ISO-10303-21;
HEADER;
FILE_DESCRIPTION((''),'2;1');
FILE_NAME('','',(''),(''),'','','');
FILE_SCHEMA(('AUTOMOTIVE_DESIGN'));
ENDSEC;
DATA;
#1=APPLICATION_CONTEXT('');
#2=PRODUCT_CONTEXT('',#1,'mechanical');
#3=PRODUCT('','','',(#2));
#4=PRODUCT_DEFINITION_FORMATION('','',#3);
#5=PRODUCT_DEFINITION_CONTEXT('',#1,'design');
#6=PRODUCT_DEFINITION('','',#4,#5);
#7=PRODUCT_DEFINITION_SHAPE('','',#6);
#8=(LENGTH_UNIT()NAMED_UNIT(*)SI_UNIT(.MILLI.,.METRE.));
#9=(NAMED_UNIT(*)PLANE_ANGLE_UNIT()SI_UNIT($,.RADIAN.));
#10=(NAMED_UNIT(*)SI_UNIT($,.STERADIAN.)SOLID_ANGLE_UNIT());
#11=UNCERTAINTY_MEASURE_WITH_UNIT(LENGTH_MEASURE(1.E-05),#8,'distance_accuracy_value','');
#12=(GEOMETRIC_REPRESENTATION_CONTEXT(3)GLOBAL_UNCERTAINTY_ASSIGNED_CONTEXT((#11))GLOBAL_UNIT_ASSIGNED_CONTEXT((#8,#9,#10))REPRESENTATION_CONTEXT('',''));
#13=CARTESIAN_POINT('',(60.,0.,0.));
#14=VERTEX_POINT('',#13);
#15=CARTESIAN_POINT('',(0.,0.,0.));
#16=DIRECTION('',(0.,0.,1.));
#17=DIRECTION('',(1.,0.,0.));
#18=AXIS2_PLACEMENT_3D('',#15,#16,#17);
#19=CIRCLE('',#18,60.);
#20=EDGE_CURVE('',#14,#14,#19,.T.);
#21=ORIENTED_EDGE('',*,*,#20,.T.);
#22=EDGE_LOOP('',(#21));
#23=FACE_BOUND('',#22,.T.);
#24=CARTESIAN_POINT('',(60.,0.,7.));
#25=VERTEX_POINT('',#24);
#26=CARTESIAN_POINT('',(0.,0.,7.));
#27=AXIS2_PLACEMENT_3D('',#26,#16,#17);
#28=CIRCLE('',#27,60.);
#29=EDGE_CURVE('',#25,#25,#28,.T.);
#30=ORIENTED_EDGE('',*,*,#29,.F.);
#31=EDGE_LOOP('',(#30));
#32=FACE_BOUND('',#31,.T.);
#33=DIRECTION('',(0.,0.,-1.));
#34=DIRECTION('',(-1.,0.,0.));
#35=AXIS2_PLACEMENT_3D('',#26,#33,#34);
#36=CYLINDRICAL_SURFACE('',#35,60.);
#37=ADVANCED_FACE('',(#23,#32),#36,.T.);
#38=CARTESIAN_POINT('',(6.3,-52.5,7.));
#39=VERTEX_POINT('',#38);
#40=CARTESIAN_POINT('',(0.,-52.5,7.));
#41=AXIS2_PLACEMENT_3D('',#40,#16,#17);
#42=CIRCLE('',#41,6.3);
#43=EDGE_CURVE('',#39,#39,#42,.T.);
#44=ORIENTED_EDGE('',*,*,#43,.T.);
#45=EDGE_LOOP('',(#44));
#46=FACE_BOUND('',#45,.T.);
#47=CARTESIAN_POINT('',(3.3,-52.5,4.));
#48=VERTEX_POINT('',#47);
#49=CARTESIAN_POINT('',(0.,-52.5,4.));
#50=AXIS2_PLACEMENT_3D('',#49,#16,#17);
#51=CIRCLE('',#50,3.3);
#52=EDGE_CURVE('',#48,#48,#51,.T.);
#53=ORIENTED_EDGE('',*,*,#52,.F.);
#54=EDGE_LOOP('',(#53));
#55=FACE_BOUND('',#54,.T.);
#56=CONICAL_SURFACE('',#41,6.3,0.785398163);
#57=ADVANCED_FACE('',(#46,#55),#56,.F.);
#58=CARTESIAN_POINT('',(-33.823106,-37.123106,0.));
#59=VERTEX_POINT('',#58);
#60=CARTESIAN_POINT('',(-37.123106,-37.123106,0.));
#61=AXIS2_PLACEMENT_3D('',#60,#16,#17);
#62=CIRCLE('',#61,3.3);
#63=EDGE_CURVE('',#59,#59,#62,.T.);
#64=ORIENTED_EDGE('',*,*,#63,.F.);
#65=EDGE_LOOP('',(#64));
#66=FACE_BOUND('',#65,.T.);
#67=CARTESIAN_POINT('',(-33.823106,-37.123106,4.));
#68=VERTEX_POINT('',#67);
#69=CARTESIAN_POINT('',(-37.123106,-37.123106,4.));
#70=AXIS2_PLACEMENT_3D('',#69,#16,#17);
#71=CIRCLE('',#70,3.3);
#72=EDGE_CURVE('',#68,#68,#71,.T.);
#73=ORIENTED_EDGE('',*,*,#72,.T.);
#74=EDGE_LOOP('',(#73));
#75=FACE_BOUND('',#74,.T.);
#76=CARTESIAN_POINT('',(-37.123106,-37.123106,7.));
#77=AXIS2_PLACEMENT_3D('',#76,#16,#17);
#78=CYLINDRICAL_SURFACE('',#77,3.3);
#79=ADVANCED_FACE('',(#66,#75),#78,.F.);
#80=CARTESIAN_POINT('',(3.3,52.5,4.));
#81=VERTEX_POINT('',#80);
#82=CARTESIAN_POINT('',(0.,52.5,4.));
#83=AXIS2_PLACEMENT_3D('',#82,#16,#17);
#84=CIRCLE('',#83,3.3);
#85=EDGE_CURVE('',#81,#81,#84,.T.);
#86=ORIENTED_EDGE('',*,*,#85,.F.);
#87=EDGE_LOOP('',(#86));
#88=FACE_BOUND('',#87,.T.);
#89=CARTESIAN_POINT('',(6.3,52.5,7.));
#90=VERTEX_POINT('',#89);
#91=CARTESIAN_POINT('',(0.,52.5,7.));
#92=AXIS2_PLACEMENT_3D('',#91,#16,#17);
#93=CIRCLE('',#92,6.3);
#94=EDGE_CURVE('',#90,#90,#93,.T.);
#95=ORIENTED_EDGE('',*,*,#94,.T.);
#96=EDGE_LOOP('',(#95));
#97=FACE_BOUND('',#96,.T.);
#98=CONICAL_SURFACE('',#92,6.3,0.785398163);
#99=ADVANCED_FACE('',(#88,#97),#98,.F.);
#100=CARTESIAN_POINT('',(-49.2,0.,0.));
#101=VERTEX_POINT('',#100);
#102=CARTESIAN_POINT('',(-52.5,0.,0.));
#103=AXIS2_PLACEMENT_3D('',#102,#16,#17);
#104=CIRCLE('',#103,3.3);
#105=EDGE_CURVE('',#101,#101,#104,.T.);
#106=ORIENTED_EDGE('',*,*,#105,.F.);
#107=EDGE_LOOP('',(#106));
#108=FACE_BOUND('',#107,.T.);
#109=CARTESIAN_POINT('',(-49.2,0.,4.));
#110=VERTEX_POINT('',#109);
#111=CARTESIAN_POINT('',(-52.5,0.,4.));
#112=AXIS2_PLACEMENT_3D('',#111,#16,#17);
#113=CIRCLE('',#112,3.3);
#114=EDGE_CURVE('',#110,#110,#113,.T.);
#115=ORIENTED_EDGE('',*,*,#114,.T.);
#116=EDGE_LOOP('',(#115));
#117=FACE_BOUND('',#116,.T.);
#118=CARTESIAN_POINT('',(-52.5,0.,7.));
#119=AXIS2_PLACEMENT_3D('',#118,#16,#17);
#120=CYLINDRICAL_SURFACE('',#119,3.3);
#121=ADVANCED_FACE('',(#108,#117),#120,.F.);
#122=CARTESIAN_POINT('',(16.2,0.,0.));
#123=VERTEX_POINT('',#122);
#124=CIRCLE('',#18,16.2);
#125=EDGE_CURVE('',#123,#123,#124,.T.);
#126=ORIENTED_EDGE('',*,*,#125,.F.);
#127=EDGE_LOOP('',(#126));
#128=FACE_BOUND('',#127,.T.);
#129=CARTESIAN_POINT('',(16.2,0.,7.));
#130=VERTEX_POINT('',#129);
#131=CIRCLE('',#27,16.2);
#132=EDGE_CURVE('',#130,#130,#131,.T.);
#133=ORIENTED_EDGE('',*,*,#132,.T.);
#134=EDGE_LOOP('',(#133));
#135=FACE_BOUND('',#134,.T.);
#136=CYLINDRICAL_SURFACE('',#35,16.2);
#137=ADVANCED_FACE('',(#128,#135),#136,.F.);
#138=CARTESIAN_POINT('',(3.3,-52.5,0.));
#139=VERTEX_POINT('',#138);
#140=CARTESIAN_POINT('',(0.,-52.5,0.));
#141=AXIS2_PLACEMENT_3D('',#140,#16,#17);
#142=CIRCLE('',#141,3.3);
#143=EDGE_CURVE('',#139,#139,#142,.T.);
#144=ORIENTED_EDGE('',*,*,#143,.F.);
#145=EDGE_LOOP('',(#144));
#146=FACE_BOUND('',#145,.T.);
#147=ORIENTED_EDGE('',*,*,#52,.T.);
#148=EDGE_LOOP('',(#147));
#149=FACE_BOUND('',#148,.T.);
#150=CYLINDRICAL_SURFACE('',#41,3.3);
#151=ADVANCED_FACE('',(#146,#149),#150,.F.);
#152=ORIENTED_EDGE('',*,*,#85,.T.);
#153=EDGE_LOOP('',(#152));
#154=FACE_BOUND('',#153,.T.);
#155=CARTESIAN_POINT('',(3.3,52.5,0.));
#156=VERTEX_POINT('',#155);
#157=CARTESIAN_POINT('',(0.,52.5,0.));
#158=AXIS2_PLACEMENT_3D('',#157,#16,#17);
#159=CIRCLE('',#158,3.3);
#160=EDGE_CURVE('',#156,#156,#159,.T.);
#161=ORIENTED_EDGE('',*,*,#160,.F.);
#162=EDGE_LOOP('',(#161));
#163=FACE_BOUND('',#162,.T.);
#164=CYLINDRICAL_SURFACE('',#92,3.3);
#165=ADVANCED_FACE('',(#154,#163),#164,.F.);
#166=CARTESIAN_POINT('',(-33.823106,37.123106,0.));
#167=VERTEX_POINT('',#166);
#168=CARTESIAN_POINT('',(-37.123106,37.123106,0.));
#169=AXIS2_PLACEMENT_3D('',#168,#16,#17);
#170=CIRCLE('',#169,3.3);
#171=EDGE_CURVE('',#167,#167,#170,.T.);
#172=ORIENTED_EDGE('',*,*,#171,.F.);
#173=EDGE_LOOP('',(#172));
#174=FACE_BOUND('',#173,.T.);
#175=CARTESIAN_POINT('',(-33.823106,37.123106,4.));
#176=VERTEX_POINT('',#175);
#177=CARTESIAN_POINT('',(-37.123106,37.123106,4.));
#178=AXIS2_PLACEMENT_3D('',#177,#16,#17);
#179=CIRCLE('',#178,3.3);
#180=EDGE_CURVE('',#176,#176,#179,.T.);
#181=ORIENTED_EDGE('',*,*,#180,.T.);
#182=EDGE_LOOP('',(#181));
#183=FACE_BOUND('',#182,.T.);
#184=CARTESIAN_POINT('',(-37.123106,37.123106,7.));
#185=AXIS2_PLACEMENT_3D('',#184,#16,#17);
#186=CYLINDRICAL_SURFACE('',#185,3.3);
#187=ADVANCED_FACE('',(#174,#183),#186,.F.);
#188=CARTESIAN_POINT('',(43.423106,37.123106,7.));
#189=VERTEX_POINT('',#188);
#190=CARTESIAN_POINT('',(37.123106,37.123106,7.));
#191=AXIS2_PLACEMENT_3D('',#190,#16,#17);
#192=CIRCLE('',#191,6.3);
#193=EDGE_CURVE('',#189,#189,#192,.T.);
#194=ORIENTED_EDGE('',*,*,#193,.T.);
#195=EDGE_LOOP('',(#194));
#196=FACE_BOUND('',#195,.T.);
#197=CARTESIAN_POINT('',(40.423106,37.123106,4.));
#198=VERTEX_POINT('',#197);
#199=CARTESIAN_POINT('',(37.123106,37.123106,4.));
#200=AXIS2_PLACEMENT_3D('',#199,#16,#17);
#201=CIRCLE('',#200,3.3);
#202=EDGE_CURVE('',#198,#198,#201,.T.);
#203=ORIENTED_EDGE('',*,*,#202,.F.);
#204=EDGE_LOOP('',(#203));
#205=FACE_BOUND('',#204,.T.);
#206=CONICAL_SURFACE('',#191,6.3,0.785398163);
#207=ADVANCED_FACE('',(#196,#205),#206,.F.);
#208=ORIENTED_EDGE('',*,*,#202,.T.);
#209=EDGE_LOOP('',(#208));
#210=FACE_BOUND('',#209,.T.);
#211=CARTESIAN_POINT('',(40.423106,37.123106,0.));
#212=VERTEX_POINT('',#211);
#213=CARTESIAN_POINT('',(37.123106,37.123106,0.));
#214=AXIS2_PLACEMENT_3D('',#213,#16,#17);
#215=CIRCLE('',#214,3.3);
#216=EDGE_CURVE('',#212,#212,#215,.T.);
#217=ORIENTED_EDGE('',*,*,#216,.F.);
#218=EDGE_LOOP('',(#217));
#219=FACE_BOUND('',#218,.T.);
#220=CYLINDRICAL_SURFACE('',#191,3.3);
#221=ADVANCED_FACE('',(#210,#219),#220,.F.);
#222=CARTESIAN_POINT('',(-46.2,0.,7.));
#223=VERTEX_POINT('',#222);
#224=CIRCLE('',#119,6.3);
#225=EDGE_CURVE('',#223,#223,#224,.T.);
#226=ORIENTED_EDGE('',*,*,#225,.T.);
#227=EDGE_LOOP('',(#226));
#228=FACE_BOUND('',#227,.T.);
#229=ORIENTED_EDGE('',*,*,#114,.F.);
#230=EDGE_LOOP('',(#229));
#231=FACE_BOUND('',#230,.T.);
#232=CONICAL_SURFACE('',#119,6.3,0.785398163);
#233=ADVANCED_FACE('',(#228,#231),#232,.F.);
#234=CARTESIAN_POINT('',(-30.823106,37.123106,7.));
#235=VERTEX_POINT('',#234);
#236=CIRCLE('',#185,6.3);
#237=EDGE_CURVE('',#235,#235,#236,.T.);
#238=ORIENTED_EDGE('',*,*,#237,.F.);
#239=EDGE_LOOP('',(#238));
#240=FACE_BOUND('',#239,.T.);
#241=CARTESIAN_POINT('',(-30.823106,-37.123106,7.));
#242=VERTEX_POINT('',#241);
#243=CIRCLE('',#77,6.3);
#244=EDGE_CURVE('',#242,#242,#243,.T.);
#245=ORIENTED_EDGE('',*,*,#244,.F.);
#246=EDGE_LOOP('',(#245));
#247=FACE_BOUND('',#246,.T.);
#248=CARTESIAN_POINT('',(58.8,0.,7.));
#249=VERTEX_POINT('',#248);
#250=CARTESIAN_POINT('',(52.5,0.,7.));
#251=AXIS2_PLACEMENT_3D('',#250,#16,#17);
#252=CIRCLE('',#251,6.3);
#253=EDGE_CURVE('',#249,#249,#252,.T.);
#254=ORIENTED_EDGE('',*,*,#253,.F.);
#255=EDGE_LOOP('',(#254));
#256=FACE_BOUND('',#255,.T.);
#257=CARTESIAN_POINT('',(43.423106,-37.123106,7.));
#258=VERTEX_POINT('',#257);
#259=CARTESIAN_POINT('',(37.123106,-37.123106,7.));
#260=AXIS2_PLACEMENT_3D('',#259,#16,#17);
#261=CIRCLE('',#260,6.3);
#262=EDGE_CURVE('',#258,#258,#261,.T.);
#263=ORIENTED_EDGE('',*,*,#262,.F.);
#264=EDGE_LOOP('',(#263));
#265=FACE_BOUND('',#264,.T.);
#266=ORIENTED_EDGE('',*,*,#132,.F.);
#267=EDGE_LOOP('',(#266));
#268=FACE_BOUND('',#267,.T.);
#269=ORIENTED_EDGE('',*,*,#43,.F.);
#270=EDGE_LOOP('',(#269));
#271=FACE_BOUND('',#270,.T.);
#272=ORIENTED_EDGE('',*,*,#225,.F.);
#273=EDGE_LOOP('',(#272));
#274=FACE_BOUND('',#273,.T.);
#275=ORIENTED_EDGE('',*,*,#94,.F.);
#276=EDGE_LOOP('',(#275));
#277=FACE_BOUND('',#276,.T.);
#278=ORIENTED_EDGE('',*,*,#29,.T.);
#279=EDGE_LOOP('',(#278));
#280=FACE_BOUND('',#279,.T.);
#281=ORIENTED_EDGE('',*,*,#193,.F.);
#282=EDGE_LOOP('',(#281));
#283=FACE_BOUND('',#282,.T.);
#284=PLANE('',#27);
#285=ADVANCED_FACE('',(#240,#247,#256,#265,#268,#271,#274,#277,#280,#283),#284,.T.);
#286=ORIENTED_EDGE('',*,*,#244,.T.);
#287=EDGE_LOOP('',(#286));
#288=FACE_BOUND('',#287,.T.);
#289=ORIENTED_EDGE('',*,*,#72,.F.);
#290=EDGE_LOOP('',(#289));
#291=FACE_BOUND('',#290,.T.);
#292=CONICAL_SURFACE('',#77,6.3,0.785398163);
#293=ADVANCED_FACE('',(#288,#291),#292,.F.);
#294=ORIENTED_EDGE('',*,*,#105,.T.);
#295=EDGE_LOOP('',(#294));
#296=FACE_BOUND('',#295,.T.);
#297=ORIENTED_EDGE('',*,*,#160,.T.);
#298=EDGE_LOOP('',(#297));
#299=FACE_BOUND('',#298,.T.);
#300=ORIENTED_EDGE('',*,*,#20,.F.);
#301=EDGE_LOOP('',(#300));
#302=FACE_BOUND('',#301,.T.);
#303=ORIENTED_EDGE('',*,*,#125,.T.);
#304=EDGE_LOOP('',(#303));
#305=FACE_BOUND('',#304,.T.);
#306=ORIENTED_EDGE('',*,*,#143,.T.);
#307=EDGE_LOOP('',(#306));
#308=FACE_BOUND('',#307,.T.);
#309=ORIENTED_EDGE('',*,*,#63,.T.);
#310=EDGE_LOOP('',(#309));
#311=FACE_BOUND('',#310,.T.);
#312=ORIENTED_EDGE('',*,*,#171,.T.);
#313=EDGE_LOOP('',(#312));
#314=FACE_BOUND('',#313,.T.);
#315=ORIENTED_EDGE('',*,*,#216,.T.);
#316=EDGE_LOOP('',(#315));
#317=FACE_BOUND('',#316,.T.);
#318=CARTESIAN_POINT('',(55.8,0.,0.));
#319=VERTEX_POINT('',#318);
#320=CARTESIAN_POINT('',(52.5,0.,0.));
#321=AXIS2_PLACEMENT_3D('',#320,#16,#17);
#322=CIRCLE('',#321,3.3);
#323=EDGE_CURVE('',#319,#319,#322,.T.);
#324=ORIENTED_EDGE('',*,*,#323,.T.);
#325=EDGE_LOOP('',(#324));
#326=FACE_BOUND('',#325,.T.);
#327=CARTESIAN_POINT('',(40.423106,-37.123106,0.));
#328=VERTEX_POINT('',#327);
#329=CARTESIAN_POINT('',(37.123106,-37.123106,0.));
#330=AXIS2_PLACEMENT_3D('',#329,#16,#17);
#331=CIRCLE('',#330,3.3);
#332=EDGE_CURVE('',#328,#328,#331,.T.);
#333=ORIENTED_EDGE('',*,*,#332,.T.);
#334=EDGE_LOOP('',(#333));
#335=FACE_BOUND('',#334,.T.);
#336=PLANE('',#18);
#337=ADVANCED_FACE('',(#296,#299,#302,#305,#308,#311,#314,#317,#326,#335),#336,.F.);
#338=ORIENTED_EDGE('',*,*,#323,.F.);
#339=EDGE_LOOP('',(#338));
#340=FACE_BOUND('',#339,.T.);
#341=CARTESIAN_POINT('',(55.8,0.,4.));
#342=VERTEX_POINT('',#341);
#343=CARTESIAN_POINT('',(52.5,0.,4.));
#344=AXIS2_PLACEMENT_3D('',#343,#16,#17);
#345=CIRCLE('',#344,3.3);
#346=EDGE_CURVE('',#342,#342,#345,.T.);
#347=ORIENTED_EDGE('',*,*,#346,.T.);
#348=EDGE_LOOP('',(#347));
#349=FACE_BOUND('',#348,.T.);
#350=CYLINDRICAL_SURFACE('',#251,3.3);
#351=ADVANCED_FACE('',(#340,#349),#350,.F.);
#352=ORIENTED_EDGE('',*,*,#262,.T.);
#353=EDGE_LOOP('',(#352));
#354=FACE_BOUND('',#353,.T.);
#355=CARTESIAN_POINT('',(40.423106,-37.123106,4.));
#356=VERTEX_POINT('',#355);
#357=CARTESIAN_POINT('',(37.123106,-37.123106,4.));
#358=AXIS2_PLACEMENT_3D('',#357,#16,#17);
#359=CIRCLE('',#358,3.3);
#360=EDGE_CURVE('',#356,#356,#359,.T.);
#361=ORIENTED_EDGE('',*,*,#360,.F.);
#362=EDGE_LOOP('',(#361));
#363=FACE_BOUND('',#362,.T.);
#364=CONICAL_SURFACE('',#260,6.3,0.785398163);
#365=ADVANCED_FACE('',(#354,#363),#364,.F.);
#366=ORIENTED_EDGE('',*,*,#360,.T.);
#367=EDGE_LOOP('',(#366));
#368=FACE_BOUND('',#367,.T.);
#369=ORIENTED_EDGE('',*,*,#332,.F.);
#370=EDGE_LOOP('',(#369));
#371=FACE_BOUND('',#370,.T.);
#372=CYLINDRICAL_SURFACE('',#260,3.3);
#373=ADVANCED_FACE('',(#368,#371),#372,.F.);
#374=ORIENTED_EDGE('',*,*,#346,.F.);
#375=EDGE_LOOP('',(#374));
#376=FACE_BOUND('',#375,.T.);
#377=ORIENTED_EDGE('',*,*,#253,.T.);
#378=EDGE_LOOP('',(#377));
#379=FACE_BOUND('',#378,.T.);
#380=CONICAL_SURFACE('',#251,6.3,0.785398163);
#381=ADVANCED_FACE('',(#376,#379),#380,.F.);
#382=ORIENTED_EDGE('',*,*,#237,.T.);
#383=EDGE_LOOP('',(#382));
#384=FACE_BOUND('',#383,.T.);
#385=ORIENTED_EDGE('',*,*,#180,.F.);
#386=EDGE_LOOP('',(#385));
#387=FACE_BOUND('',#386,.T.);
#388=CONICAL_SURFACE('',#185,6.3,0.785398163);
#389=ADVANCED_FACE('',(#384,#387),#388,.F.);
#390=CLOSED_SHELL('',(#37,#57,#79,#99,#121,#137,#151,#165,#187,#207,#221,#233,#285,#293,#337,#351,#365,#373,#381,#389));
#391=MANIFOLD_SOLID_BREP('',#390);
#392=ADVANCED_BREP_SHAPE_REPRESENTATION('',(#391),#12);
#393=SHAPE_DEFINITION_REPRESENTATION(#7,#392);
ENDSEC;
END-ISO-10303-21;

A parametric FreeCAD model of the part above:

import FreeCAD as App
import Part
import Sketcher

doc = App.newDocument("Part")
params = doc.addObject("Spreadsheet::Sheet", "Params")
for row, (alias, value) in enumerate([
    ("sketch1_diameter", "120 mm"),
    ("sketch1_diameter2", "32.4 mm"),
    ("pad1_length", "7 mm"),
    ("sketch2_diameter", "6.6 mm"),
    ("hole_diameter", "6.6 mm"),
    ("hole_csink_diameter", "12.6 mm"),
], start=1):
    params.set(f"A{row}", alias)
    params.set(f"B{row}", "=" + value)
    params.setAlias(f"B{row}", alias)

body = doc.addObject("PartDesign::Body", "Body")

# Sketch on XY plane
sketch1 = body.newObject("Sketcher::SketchObject", "Sketch")
sketch1.AttachmentSupport = (doc.getObject("XY_Plane"), [""])
sketch1.MapMode = "FlatFace"
sketch1.addGeometry([
    Part.Circle(App.Vector(0, 0, 0), App.Vector(0, 0, 1), 60),
    Part.Circle(App.Vector(0, 0, 0), App.Vector(0, 0, 1), 16),
], False)
sketch1.addConstraint([
    Sketcher.Constraint("Coincident", 0, 3, -1, 1),
    Sketcher.Constraint("Coincident", 1, 3, -1, 1),
    Sketcher.Constraint("Diameter", 0, 120.0),
    Sketcher.Constraint("Diameter", 1, 32.4),
])
sketch1.setExpression("Constraints[2]", "Params.sketch1_diameter")
sketch1.setExpression("Constraints[3]", "Params.sketch1_diameter2")
pad1 = body.newObject("PartDesign::Pad", "Pad")
pad1.Profile = sketch1
pad1.setExpression("Length", "Params.pad1_length")

# Sketch on XY plane
sketch2 = body.newObject("Sketcher::SketchObject", "Sketch001")
sketch2.AttachmentSupport = (doc.getObject("XY_Plane"), [""])
sketch2.MapMode = "FlatFace"
sketch2.AttachmentOffset = App.Placement(App.Vector(0, 0, 7), App.Rotation())
sketch2.addGeometry([
    Part.Circle(App.Vector(-37.1, 37.1, 0), App.Vector(0, 0, 1), 3.3),  # 0
    Part.Circle(App.Vector(0, 52.5, 0), App.Vector(0, 0, 1), 3.3),  # 1
    Part.Circle(App.Vector(37.1, 37.1, 0), App.Vector(0, 0, 1), 3.3),  # 2
    Part.Circle(App.Vector(52.5, 0, 0), App.Vector(0, 0, 1), 3.3),  # 3
    Part.Circle(App.Vector(37.1, -37.1, 0), App.Vector(0, 0, 1), 3.3),  # 4
    Part.Circle(App.Vector(0, -52.5, 0), App.Vector(0, 0, 1), 3.3),  # 5
    Part.Circle(App.Vector(-37.1, -37.1, 0), App.Vector(0, 0, 1), 3.3),  # 6
    Part.Circle(App.Vector(-52.5, 0, 0), App.Vector(0, 0, 1), 3.3),  # 7
], False)
sketch2.addConstraint([
    Sketcher.Constraint("Equal", 0, 1),
    Sketcher.Constraint("Equal", 1, 2),
    Sketcher.Constraint("Equal", 2, 3),
    Sketcher.Constraint("Equal", 3, 4),
    Sketcher.Constraint("Equal", 4, 5),
    Sketcher.Constraint("Equal", 5, 6),
    Sketcher.Constraint("Equal", 6, 7),
    Sketcher.Constraint("Symmetric", 0, 3, 4, 3, -1, 1),
    Sketcher.Constraint("Symmetric", 1, 3, 5, 3, -1, 1),
    Sketcher.Constraint("Symmetric", 2, 3, 6, 3, -1, 1),
    Sketcher.Constraint("Symmetric", 3, 3, 7, 3, -1, 1),
    Sketcher.Constraint("Symmetric", 0, 3, 2, 3, -2),
    Sketcher.Constraint("PointOnObject", 1, 3, -2),
    Sketcher.Constraint("PointOnObject", 3, 3, -1),
    Sketcher.Constraint("Diameter", 0, 6.6),
    Sketcher.Constraint("DistanceY", 5, 3, 1, 3, 105.0),
    Sketcher.Constraint("DistanceX", -1, 1, 3, 3, 52.5),
    Sketcher.Constraint("DistanceX", 0, 3, -1, 1, 37.123106),
    Sketcher.Constraint("DistanceY", -1, 1, 0, 3, 37.123106),
])
sketch2.setExpression("Constraints[14]", "Params.sketch2_diameter")
doc.recompute()
hole = body.newObject("PartDesign::Hole", "Hole")
hole.Profile = sketch2
hole.ThreadType = "None"
hole.setExpression("Diameter", "Params.hole_diameter")
hole.DepthType = "ThroughAll"
hole.HoleCutType = "Countersink"
hole.setExpression("HoleCutDiameter", "Params.hole_csink_diameter")
hole.HoleCutCountersinkAngle = 90

doc.recompute()
